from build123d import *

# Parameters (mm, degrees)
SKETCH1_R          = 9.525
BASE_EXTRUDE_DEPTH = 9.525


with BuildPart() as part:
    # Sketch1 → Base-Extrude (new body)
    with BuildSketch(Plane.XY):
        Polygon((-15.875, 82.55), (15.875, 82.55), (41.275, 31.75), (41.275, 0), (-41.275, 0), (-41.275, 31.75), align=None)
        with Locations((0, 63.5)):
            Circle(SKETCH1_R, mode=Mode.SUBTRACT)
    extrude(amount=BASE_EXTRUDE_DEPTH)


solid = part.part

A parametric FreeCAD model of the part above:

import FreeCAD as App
import Part
import Sketcher
from FreeCAD import Vector
Q = App.Units.Quantity

doc = App.newDocument("Part")
body = doc.addObject("PartDesign::Body", "Body")

# Sketch on XY plane
sketch1 = body.newObject("Sketcher::SketchObject", "Sketch")
sketch1.AttachmentSupport = (doc.getObject("XY_Plane"), [""])
sketch1.MapMode = "FlatFace"
sketch1.addGeometry([
    Part.LineSegment(Vector(16, 83, 0), Vector(-16, 83, 0)),  # 0
    Part.LineSegment(Vector(-16, 83, 0), Vector(-41, 32, 0)),  # 1
    Part.LineSegment(Vector(-41, 32, 0), Vector(-41, 0, 0)),  # 2
    Part.LineSegment(Vector(-41, 0, 0), Vector(41, 0, 0)),  # 3
    Part.LineSegment(Vector(41, 0, 0), Vector(41, 32, 0)),  # 4
    Part.LineSegment(Vector(41, 32, 0), Vector(16, 83, 0)),  # 5
    Part.Circle(Vector(0, 64, 0), Vector(0, 0, 1), 10),  # 6
], False)
sketch1.addConstraint([
    Sketcher.Constraint("Coincident", 0, 2, 1, 1),
    Sketcher.Constraint("Coincident", 1, 2, 2, 1),
    Sketcher.Constraint("Coincident", 2, 2, 3, 1),
    Sketcher.Constraint("Coincident", 3, 2, 4, 1),
    Sketcher.Constraint("Coincident", 4, 2, 5, 1),
    Sketcher.Constraint("Coincident", 5, 2, 0, 1),
    Sketcher.Constraint("Horizontal", 0),
    Sketcher.Constraint("Vertical", 2),
    Sketcher.Constraint("Horizontal", 3),
    Sketcher.Constraint("Vertical", 4),
    Sketcher.Constraint("Symmetric", 2, 2, 3, 2, -1, 1),
    Sketcher.Constraint("PointOnObject", 6, 3, -2),
    Sketcher.Constraint("Horizontal", 1, 2, 4, 2),
    Sketcher.Constraint("Equal", 0, 2),
    Sketcher.Constraint("Equal", 1, 5),
    Sketcher.Constraint("Diameter", 6, Q("0.75 in")),
    Sketcher.Constraint("DistanceX", 1, 2, 0, 2, Q("1 in")),
    Sketcher.Constraint("DistanceY", 1, 2, 0, 2, Q("2 in")),
    Sketcher.Constraint("DistanceX", 0, 2, 0, 1, Q("1.25 in")),
    Sketcher.Constraint("DistanceY", -1, 1, 6, 3, Q("2.5 in")),
])
pad1 = body.newObject("PartDesign::Pad", "Pad")
pad1.Profile = sketch1
pad1.Length = Q("0.375 in")

doc.recompute()
